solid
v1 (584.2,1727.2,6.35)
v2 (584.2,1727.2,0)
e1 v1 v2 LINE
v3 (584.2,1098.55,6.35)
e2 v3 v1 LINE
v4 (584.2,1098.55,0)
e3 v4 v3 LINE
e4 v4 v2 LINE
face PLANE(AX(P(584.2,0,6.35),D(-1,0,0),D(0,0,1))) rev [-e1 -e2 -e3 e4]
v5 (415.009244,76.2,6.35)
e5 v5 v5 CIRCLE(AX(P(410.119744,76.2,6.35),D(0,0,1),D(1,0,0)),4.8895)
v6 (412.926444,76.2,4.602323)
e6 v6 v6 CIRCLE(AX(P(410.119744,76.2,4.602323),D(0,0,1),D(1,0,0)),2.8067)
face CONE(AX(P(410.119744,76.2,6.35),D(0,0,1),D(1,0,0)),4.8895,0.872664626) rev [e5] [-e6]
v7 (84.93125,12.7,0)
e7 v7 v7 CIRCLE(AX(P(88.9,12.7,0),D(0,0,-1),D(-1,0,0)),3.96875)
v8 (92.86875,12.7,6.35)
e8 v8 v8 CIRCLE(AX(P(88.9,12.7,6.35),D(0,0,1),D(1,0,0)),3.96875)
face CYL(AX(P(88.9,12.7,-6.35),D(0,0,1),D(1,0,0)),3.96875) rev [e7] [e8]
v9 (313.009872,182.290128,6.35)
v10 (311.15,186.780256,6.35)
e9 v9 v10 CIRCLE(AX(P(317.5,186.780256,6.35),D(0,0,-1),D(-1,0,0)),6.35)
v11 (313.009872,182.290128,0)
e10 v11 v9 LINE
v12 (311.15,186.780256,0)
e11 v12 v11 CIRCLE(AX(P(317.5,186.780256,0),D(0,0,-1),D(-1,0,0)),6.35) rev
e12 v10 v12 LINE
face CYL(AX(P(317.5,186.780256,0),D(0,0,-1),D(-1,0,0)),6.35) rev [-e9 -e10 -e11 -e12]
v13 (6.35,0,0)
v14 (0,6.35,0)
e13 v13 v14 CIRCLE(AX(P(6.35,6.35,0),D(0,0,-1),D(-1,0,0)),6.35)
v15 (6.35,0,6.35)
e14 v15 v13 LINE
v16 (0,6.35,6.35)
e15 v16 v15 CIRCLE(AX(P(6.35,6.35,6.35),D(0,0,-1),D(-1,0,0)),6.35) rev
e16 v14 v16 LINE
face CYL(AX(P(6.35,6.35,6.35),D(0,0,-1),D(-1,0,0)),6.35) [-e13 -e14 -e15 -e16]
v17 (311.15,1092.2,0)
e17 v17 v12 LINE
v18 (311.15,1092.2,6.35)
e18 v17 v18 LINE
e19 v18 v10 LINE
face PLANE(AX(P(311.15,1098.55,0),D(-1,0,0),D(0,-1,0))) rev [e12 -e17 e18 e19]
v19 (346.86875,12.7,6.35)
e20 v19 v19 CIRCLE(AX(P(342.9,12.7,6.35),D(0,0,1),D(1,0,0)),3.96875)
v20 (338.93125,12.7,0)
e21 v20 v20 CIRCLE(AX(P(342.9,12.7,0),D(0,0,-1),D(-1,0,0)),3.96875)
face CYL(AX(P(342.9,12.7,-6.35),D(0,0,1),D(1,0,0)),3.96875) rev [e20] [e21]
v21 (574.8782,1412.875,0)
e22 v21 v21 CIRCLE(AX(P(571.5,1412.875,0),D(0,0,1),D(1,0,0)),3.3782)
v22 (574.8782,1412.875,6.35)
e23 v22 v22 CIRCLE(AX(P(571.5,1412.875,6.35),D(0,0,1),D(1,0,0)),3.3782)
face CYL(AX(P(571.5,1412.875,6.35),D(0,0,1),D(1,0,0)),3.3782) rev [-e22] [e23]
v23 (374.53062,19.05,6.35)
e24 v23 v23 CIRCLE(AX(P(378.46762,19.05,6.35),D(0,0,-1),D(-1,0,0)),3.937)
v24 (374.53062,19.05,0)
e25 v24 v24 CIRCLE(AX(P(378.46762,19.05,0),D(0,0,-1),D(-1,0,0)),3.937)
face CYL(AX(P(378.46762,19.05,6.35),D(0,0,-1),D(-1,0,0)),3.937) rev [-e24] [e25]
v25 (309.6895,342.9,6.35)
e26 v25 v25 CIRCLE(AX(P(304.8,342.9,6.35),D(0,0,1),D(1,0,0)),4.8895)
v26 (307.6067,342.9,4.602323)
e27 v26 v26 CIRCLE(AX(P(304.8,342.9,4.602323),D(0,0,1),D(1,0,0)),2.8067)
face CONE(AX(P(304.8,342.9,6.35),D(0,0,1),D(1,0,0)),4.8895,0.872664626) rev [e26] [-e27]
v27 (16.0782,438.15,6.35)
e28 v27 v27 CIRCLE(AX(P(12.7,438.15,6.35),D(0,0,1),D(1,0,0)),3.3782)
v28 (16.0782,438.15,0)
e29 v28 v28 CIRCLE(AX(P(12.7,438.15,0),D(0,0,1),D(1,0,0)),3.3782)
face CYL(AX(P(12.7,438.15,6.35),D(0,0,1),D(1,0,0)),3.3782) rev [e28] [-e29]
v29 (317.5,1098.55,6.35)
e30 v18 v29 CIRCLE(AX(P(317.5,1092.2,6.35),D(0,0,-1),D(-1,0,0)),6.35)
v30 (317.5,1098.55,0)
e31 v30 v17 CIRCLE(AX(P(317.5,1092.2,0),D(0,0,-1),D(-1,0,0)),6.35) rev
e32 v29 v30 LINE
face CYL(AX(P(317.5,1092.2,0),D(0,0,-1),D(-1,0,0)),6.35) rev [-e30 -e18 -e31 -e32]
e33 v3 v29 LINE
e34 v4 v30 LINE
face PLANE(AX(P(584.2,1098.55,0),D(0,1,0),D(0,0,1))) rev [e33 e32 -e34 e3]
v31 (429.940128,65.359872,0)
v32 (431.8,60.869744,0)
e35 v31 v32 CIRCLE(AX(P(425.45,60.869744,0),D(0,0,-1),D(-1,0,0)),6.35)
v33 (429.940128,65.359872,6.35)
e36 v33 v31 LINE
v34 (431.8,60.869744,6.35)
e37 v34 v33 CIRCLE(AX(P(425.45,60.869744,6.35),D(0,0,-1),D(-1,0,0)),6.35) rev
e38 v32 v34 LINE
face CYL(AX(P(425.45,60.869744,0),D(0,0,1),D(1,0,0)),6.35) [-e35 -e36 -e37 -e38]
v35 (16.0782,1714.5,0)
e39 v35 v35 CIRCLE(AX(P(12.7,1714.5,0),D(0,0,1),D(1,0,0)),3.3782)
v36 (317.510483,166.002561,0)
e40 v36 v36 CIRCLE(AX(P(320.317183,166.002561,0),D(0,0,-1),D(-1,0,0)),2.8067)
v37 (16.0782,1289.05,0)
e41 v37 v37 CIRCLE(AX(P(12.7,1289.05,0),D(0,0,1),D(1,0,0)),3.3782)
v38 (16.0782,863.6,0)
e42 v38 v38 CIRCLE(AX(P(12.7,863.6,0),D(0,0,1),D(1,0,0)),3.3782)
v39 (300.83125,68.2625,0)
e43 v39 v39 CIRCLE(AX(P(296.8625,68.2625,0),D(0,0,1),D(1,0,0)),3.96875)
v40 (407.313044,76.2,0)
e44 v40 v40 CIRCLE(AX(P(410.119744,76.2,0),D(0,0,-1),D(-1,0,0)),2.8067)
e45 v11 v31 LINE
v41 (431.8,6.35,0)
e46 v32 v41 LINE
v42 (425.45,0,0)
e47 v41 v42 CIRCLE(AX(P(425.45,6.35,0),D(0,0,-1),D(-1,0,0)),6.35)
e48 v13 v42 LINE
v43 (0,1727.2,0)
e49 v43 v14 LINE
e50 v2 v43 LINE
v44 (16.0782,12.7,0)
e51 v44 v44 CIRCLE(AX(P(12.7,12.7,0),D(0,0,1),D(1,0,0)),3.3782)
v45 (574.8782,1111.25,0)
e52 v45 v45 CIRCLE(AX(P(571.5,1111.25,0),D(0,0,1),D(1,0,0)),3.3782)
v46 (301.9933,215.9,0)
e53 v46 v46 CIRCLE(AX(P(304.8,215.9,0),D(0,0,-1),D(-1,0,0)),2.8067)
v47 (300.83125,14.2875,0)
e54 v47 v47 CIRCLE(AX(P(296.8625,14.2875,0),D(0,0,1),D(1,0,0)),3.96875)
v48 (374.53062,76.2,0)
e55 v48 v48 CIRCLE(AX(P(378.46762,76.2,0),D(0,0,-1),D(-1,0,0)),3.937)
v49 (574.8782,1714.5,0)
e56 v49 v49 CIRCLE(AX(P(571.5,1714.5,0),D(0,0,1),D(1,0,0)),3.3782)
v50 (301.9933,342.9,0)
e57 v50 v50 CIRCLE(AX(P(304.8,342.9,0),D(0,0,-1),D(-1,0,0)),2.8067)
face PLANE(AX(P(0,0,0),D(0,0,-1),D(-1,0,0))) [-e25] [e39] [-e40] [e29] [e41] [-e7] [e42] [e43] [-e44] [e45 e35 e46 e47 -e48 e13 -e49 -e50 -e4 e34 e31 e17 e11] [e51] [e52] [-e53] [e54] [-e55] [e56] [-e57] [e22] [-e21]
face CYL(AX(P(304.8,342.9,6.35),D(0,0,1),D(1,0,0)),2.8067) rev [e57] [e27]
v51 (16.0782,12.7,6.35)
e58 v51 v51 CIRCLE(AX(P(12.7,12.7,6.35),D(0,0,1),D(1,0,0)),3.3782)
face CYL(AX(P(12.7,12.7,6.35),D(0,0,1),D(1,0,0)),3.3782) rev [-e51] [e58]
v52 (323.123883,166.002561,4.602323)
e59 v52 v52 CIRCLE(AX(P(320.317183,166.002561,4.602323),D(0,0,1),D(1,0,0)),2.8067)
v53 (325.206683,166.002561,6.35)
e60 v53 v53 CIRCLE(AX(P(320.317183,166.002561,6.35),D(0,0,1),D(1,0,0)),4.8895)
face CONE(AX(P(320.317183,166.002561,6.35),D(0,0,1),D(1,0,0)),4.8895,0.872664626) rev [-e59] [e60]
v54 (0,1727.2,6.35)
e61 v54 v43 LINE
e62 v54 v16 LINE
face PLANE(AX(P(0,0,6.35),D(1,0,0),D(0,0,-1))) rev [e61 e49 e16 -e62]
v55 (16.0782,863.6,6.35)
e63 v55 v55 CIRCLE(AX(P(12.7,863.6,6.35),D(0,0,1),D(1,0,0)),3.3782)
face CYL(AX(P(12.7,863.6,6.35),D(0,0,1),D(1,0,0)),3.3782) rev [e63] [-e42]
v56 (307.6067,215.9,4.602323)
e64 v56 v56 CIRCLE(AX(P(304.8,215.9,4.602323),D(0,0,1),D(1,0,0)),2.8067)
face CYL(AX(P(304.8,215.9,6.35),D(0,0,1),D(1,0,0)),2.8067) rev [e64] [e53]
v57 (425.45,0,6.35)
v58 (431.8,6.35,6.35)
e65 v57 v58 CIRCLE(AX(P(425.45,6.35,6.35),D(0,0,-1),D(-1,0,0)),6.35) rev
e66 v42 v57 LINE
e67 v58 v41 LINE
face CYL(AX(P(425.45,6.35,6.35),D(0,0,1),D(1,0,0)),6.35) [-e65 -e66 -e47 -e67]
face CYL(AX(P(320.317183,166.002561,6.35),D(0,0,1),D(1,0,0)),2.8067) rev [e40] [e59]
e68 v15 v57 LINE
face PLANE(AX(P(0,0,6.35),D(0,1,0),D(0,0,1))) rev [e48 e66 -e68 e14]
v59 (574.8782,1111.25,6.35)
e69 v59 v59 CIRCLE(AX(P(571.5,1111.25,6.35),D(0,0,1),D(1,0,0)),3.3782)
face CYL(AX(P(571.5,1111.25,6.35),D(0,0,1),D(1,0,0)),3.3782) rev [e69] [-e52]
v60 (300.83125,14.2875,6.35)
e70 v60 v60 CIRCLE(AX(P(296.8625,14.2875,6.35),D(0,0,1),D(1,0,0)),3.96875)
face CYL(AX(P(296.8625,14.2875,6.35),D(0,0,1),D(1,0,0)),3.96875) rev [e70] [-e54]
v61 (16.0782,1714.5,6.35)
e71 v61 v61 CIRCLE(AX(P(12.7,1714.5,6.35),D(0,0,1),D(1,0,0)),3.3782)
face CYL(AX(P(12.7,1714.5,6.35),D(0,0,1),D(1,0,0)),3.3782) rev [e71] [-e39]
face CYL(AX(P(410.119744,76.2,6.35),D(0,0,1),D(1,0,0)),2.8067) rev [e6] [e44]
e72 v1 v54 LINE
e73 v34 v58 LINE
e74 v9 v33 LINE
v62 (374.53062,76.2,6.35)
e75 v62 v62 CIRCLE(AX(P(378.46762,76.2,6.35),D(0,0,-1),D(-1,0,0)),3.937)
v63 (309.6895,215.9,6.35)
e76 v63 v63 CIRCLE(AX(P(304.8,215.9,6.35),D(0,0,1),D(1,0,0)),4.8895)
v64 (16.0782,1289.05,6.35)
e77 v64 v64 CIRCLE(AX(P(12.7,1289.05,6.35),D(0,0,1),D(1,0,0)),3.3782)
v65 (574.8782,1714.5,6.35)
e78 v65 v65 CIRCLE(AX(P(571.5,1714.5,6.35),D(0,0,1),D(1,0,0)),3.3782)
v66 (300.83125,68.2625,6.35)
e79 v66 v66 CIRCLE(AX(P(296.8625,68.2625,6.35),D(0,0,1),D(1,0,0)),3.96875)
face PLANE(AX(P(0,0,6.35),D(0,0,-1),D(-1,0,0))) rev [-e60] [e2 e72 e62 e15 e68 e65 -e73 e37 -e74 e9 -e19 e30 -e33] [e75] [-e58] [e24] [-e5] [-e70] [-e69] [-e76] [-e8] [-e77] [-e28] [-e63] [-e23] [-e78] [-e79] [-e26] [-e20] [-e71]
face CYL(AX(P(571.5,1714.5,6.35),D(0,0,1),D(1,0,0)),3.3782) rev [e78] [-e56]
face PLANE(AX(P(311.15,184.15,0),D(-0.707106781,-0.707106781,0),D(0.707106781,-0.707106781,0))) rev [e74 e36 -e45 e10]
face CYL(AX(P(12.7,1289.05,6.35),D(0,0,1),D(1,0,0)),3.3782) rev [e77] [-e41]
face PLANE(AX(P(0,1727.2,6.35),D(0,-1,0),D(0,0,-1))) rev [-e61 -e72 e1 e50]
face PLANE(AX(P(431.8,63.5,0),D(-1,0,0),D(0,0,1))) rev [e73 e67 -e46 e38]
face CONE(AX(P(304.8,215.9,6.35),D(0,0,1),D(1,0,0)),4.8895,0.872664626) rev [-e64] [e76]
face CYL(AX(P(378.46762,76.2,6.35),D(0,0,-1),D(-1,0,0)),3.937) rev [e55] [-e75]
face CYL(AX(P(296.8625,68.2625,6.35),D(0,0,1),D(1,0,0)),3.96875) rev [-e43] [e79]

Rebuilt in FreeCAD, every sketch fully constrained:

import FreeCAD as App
import Part
import Sketcher
from FreeCAD import Vector
Q = App.Units.Quantity


def edges_at(feature, points):
    """Names of the edges that pass closest to the given points."""
    edges = feature.Shape.Edges
    near = lambda p: min(range(len(edges)), key=lambda i: edges[i].distToShape(Part.Vertex(*p))[0])
    return sorted({f"Edge{near(p) + 1}" for p in points})


def add_polygon(sketch, points):
    """Adds a closed chain of lines whose ends are joined by coincident constraints."""
    first, n = sketch.GeometryCount, len(points)
    for a, b in zip(points, points[1:] + points[:1]):
        sketch.addGeometry(Part.LineSegment(App.Vector(*a, 0), App.Vector(*b, 0)), False)
    for i in range(n):
        sketch.addConstraint(Sketcher.Constraint("Coincident", first + i, 2, first + (i + 1) % n, 1))

doc = App.newDocument("Part")
body = doc.addObject("PartDesign::Body", "Body")

# Sketch on XY plane
sketch1 = doc.addObject("Sketcher::SketchObject", "Sketch")
body.addObject(sketch1)
sketch1.AttachmentSupport = (doc.XY_Plane, [""])
sketch1.MapMode = "FlatFace"
add_polygon(sketch1, [(0, 1727), (0, 0), (584, 0), (584, 1727)])  # lines 0-3
sketch1.addConstraint(Sketcher.Constraint("Vertical", 0))
sketch1.addConstraint(Sketcher.Constraint("Horizontal", 1))
sketch1.addConstraint(Sketcher.Constraint("Vertical", 2))
sketch1.addConstraint(Sketcher.Constraint("Horizontal", 3))
sketch1.addConstraint(Sketcher.Constraint("Coincident", 0, 2, -1, 1))
sketch1.addConstraint(Sketcher.Constraint("DistanceX", 1, 1, 1, 2, Q("23 in")))
sketch1.addConstraint(Sketcher.Constraint("DistanceY", 0, 2, 0, 1, Q("68 in")))
pad1 = doc.addObject("PartDesign::Pad", "Pad")
body.addObject(pad1)
pad1.Profile = sketch1
pad1.Length = Q("0.25 in")

# Sketch on XY plane
sketch2 = doc.addObject("Sketcher::SketchObject", "Sketch001")
body.addObject(sketch2)
sketch2.AttachmentSupport = (doc.XY_Plane, [""])
sketch2.MapMode = "FlatFace"
sketch2.AttachmentOffset = App.Placement(Vector(0, 0, 0.25 * 25.4), App.Rotation())
add_polygon(sketch2, [(584, 1099), (311, 1099), (311, 184), (432, 64), (432, 0), (584, 0)])  # lines 0-5
sketch2.addConstraint(Sketcher.Constraint("Horizontal", 0))
sketch2.addConstraint(Sketcher.Constraint("Vertical", 1))
sketch2.addConstraint(Sketcher.Constraint("Vertical", 3))
sketch2.addConstraint(Sketcher.Constraint("Horizontal", 4))
sketch2.addConstraint(Sketcher.Constraint("Vertical", 5))
sketch2.addConstraint(Sketcher.Constraint("PointOnObject", 3, 2, -1))
sketch2.addConstraint(Sketcher.Constraint("DistanceX", 4, 1, 4, 2, Q("6 in")))
sketch2.addConstraint(Sketcher.Constraint("DistanceY", 1, 2, 1, 1, Q("36 in")))
sketch2.addConstraint(Sketcher.Constraint("DistanceY", 3, 2, 3, 1, Q("2.5 in")))
sketch2.addConstraint(Sketcher.Constraint("DistanceX", -1, 1, 2, 2, Q("17 in")))
sketch2.addConstraint(Sketcher.Constraint("Angle", 2, Q("-45 deg")))
sketch2.addConstraint(Sketcher.Constraint("DistanceX", 0, 2, 0, 1, Q("10.75 in")))
pocket1 = doc.addObject("PartDesign::Pocket", "Pocket")
body.addObject(pocket1)
pocket1.Profile = sketch2
pocket1.Type = "ThroughAll"

# Sketch on XY plane
sketch3 = doc.addObject("Sketcher::SketchObject", "Sketch002")
body.addObject(sketch3)
sketch3.AttachmentSupport = (doc.XY_Plane, [""])
sketch3.MapMode = "FlatFace"
sketch3.AttachmentOffset = App.Placement(Vector(0, 0, 0.25 * 25.4), App.Rotation())
sketch3.addGeometry(Part.Circle(Vector(12.7, 1714.5, 0), Vector(0, 0, 1), 3.4), False)
sketch3.addGeometry(Part.Circle(Vector(12.7, 1289, 0), Vector(0, 0, 1), 3.4), False)
sketch3.addGeometry(Part.Circle(Vector(12.7, 863.6, 0), Vector(0, 0, 1), 3.4), False)
sketch3.addGeometry(Part.Circle(Vector(12.7, 438.1, 0), Vector(0, 0, 1), 3.4), False)
sketch3.addGeometry(Part.Circle(Vector(12.7, 12.7, 0), Vector(0, 0, 1), 3.4), False)
sketch3.addGeometry(Part.Circle(Vector(571.5, 1111.2, 0), Vector(0, 0, 1), 3.4), False)
sketch3.addGeometry(Part.Circle(Vector(571.5, 1412.9, 0), Vector(0, 0, 1), 3.4), False)
sketch3.addGeometry(Part.Circle(Vector(571.5, 1714.5, 0), Vector(0, 0, 1), 3.4), False)
sketch3.addConstraint(Sketcher.Constraint("Equal", 0, 1))
sketch3.addConstraint(Sketcher.Constraint("Equal", 1, 2))
sketch3.addConstraint(Sketcher.Constraint("Equal", 2, 3))
sketch3.addConstraint(Sketcher.Constraint("Equal", 3, 4))
sketch3.addConstraint(Sketcher.Constraint("Equal", 4, 5))
sketch3.addConstraint(Sketcher.Constraint("Equal", 5, 6))
sketch3.addConstraint(Sketcher.Constraint("Equal", 6, 7))
sketch3.addConstraint(Sketcher.Constraint("Horizontal", 0, 3, 7, 3))
sketch3.addConstraint(Sketcher.Constraint("Vertical", 0, 3, 1, 3))
sketch3.addConstraint(Sketcher.Constraint("Vertical", 1, 3, 2, 3))
sketch3.addConstraint(Sketcher.Constraint("Vertical", 2, 3, 3, 3))
sketch3.addConstraint(Sketcher.Constraint("Vertical", 3, 3, 4, 3))
sketch3.addConstraint(Sketcher.Constraint("Vertical", 5, 3, 6, 3))
sketch3.addConstraint(Sketcher.Constraint("Vertical", 6, 3, 7, 3))
sketch3.addConstraint(Sketcher.Constraint("Diameter", 0, Q("0.266 in")))
sketch3.addConstraint(Sketcher.Constraint("DistanceY", -1, 1, 2, 3, Q("34 in")))
sketch3.addConstraint(Sketcher.Constraint("DistanceY", 4, 3, 0, 3, Q("67 in")))
sketch3.addConstraint(Sketcher.Constraint("DistanceX", 1, 3, 5, 3, Q("22 in")))
sketch3.addConstraint(Sketcher.Constraint("DistanceY", 5, 3, 1, 3, Q("7 in")))
sketch3.addConstraint(Sketcher.Constraint("DistanceX", -1, 1, 0, 3, Q("0.5 in")))
sketch3.addConstraint(Sketcher.Constraint("DistanceY", -1, 1, 0, 3, Q("67.5 in")))
sketch3.addConstraint(Sketcher.Constraint("DistanceY", 3, 3, 1, 3, Q("33.5 in")))
sketch3.addConstraint(Sketcher.Constraint("DistanceY", -1, 1, 1, 3, Q("50.75 in")))
sketch3.addConstraint(Sketcher.Constraint("DistanceY", -1, 1, 6, 3, Q("55.625 in")))
doc.recompute()
hole = doc.addObject("PartDesign::Hole", "Hole")
body.addObject(hole)
hole.Profile = sketch3
hole.ThreadType = "None"
hole.Diameter = Q("0.266 in")
hole.DepthType = "ThroughAll"
doc.recompute()

fillet = doc.addObject("PartDesign::Fillet", "Fillet")
body.addObject(fillet)
fillet.Base = (hole, edges_at(hole, [
    (431.8, 0, 3.175),
    (431.8, 63.5, 3.175),
    (311.15, 184.15, 3.175),
    (311.15, 1098.55, 3.175),
    (0, 0, 3.175),
]))
fillet.Radius = Q("0.25 in")

# Sketch on XY plane
sketch4 = doc.addObject("Sketcher::SketchObject", "Sketch003")
body.addObject(sketch4)
sketch4.AttachmentSupport = (doc.XY_Plane, [""])
sketch4.MapMode = "FlatFace"
sketch4.AttachmentOffset = App.Placement(Vector(0, 0, 0.25 * 25.4), App.Rotation())
sketch4.addGeometry(Part.Circle(Vector(88.9, 12.7, 0), Vector(0, 0, 1), 4), False)
sketch4.addGeometry(Part.Circle(Vector(342.9, 12.7, 0), Vector(0, 0, 1), 4), False)
sketch4.addConstraint(Sketcher.Constraint("Equal", 0, 1))
sketch4.addConstraint(Sketcher.Constraint("Horizontal", 0, 3, 1, 3))
sketch4.addConstraint(Sketcher.Constraint("Diameter", 0, Q("0.3125 in")))
sketch4.addConstraint(Sketcher.Constraint("DistanceX", 0, 3, 1, 3, Q("10 in")))
sketch4.addConstraint(Sketcher.Constraint("DistanceX", -1, 1, 0, 3, Q("3.5 in")))
sketch4.addConstraint(Sketcher.Constraint("DistanceY", -1, 1, 0, 3, Q("0.5 in")))
pocket2 = doc.addObject("PartDesign::Pocket", "Pocket001")
body.addObject(pocket2)
pocket2.Profile = sketch4
pocket2.Length = Q("0.5 in")

# Sketch on XY plane
sketch5 = doc.addObject("Sketcher::SketchObject", "Sketch004")
body.addObject(sketch5)
sketch5.AttachmentSupport = (doc.XY_Plane, [""])
sketch5.MapMode = "FlatFace"
sketch5.AttachmentOffset = App.Placement(Vector(0, 0, 0.25 * 25.4), App.Rotation())
sketch5.addGeometry(Part.Circle(Vector(304.8, 342.9, 0), Vector(0, 0, 1), 2.8), False)
sketch5.addGeometry(Part.Circle(Vector(304.8, 215.9, 0), Vector(0, 0, 1), 2.8), False)
sketch5.addGeometry(Part.Circle(Vector(320.3, 166, 0), Vector(0, 0, 1), 2.8), False)
sketch5.addGeometry(Part.Circle(Vector(410.1, 76.2, 0), Vector(0, 0, 1), 2.8), False)
sketch5.addConstraint(Sketcher.Constraint("Equal", 0, 1))
sketch5.addConstraint(Sketcher.Constraint("Equal", 1, 2))
sketch5.addConstraint(Sketcher.Constraint("Equal", 2, 3))
sketch5.addConstraint(Sketcher.Constraint("Vertical", 0, 3, 1, 3))
sketch5.addConstraint(Sketcher.Constraint("Diameter", 0, Q("0.221 in")))
sketch5.addConstraint(Sketcher.Constraint("DistanceX", -1, 1, 0, 3, Q("12 in")))
sketch5.addConstraint(Sketcher.Constraint("DistanceY", -1, 1, 3, 3, Q("3 in")))
sketch5.addConstraint(Sketcher.Constraint("DistanceY", 1, 3, 0, 3, Q("5 in")))
sketch5.addConstraint(Sketcher.Constraint("DistanceY", -1, 1, 0, 3, Q("13.5 in")))
sketch5.addConstraint(Sketcher.Constraint("DistanceY", -1, 1, 2, 3, Q("166.002561 mm")))
sketch5.addConstraint(Sketcher.Constraint("DistanceX", 2, 3, 3, 3, Q("89.802561 mm")))
sketch5.addConstraint(Sketcher.Constraint("DistanceX", -1, 1, 2, 3, Q("320.317183 mm")))
doc.recompute()
hole2 = doc.addObject("PartDesign::Hole", "Hole001")
body.addObject(hole2)
hole2.Profile = sketch5
hole2.ThreadType = "None"
hole2.Diameter = Q("0.221 in")
hole2.DepthType = "Dimension"
hole2.Depth = Q("0.25 in")
hole2.DrillPoint = "Flat"
hole2.HoleCutType = "Countersink"
hole2.HoleCutDiameter = Q("0.385 in")
hole2.HoleCutCountersinkAngle = 100

# Sketch on XY plane
sketch6 = doc.addObject("Sketcher::SketchObject", "Sketch005")
body.addObject(sketch6)
sketch6.AttachmentSupport = (doc.XY_Plane, [""])
sketch6.MapMode = "FlatFace"
sketch6.addGeometry(Part.Circle(Vector(378.5, 76.2, 0), Vector(0, 0, 1), 3.9), False)
sketch6.addGeometry(Part.Circle(Vector(378.5, 19.1, 0), Vector(0, 0, 1), 3.9), False)
sketch6.addConstraint(Sketcher.Constraint("Equal", 0, 1))
sketch6.addConstraint(Sketcher.Constraint("Vertical", 0, 3, 1, 3))
sketch6.addConstraint(Sketcher.Constraint("Diameter", 0, Q("0.31 in")))
sketch6.addConstraint(Sketcher.Constraint("DistanceY", -1, 1, 0, 3, Q("3 in")))
sketch6.addConstraint(Sketcher.Constraint("DistanceY", -1, 1, 1, 3, Q("0.75 in")))
sketch6.addConstraint(Sketcher.Constraint("DistanceX", -1, 1, 0, 3, Q("14.9003 in")))
pocket3 = doc.addObject("PartDesign::Pocket", "Pocket002")
body.addObject(pocket3)
pocket3.Profile = sketch6
pocket3.Type = "ThroughAll"
pocket3.Reversed = True

# Sketch on XY plane
sketch7 = doc.addObject("Sketcher::SketchObject", "Sketch006")
body.addObject(sketch7)
sketch7.AttachmentSupport = (doc.XY_Plane, [""])
sketch7.MapMode = "FlatFace"
sketch7.AttachmentOffset = App.Placement(Vector(0, 0, 0.25 * 25.4), App.Rotation())
sketch7.addGeometry(Part.Circle(Vector(296.9, 14.3, 0), Vector(0, 0, 1), 4), False)
sketch7.addGeometry(Part.Circle(Vector(296.9, 68.3, 0), Vector(0, 0, 1), 4), False)
sketch7.addConstraint(Sketcher.Constraint("Equal", 0, 1))
sketch7.addConstraint(Sketcher.Constraint("Vertical", 0, 3, 1, 3))
sketch7.addConstraint(Sketcher.Constraint("Diameter", 0, Q("0.3125 in")))
sketch7.addConstraint(Sketcher.Constraint("DistanceX", -1, 1, 0, 3, Q("11.6875 in")))
sketch7.addConstraint(Sketcher.Constraint("DistanceY", -1, 1, 0, 3, Q("0.5625 in")))
sketch7.addConstraint(Sketcher.Constraint("DistanceY", -1, 1, 1, 3, Q("2.6875 in")))
doc.recompute()
hole3 = doc.addObject("PartDesign::Hole", "Hole002")
body.addObject(hole3)
hole3.Profile = sketch7
hole3.ThreadType = "None"
hole3.Diameter = Q("0.3125 in")
hole3.DepthType = "ThroughAll"

doc.recompute()
